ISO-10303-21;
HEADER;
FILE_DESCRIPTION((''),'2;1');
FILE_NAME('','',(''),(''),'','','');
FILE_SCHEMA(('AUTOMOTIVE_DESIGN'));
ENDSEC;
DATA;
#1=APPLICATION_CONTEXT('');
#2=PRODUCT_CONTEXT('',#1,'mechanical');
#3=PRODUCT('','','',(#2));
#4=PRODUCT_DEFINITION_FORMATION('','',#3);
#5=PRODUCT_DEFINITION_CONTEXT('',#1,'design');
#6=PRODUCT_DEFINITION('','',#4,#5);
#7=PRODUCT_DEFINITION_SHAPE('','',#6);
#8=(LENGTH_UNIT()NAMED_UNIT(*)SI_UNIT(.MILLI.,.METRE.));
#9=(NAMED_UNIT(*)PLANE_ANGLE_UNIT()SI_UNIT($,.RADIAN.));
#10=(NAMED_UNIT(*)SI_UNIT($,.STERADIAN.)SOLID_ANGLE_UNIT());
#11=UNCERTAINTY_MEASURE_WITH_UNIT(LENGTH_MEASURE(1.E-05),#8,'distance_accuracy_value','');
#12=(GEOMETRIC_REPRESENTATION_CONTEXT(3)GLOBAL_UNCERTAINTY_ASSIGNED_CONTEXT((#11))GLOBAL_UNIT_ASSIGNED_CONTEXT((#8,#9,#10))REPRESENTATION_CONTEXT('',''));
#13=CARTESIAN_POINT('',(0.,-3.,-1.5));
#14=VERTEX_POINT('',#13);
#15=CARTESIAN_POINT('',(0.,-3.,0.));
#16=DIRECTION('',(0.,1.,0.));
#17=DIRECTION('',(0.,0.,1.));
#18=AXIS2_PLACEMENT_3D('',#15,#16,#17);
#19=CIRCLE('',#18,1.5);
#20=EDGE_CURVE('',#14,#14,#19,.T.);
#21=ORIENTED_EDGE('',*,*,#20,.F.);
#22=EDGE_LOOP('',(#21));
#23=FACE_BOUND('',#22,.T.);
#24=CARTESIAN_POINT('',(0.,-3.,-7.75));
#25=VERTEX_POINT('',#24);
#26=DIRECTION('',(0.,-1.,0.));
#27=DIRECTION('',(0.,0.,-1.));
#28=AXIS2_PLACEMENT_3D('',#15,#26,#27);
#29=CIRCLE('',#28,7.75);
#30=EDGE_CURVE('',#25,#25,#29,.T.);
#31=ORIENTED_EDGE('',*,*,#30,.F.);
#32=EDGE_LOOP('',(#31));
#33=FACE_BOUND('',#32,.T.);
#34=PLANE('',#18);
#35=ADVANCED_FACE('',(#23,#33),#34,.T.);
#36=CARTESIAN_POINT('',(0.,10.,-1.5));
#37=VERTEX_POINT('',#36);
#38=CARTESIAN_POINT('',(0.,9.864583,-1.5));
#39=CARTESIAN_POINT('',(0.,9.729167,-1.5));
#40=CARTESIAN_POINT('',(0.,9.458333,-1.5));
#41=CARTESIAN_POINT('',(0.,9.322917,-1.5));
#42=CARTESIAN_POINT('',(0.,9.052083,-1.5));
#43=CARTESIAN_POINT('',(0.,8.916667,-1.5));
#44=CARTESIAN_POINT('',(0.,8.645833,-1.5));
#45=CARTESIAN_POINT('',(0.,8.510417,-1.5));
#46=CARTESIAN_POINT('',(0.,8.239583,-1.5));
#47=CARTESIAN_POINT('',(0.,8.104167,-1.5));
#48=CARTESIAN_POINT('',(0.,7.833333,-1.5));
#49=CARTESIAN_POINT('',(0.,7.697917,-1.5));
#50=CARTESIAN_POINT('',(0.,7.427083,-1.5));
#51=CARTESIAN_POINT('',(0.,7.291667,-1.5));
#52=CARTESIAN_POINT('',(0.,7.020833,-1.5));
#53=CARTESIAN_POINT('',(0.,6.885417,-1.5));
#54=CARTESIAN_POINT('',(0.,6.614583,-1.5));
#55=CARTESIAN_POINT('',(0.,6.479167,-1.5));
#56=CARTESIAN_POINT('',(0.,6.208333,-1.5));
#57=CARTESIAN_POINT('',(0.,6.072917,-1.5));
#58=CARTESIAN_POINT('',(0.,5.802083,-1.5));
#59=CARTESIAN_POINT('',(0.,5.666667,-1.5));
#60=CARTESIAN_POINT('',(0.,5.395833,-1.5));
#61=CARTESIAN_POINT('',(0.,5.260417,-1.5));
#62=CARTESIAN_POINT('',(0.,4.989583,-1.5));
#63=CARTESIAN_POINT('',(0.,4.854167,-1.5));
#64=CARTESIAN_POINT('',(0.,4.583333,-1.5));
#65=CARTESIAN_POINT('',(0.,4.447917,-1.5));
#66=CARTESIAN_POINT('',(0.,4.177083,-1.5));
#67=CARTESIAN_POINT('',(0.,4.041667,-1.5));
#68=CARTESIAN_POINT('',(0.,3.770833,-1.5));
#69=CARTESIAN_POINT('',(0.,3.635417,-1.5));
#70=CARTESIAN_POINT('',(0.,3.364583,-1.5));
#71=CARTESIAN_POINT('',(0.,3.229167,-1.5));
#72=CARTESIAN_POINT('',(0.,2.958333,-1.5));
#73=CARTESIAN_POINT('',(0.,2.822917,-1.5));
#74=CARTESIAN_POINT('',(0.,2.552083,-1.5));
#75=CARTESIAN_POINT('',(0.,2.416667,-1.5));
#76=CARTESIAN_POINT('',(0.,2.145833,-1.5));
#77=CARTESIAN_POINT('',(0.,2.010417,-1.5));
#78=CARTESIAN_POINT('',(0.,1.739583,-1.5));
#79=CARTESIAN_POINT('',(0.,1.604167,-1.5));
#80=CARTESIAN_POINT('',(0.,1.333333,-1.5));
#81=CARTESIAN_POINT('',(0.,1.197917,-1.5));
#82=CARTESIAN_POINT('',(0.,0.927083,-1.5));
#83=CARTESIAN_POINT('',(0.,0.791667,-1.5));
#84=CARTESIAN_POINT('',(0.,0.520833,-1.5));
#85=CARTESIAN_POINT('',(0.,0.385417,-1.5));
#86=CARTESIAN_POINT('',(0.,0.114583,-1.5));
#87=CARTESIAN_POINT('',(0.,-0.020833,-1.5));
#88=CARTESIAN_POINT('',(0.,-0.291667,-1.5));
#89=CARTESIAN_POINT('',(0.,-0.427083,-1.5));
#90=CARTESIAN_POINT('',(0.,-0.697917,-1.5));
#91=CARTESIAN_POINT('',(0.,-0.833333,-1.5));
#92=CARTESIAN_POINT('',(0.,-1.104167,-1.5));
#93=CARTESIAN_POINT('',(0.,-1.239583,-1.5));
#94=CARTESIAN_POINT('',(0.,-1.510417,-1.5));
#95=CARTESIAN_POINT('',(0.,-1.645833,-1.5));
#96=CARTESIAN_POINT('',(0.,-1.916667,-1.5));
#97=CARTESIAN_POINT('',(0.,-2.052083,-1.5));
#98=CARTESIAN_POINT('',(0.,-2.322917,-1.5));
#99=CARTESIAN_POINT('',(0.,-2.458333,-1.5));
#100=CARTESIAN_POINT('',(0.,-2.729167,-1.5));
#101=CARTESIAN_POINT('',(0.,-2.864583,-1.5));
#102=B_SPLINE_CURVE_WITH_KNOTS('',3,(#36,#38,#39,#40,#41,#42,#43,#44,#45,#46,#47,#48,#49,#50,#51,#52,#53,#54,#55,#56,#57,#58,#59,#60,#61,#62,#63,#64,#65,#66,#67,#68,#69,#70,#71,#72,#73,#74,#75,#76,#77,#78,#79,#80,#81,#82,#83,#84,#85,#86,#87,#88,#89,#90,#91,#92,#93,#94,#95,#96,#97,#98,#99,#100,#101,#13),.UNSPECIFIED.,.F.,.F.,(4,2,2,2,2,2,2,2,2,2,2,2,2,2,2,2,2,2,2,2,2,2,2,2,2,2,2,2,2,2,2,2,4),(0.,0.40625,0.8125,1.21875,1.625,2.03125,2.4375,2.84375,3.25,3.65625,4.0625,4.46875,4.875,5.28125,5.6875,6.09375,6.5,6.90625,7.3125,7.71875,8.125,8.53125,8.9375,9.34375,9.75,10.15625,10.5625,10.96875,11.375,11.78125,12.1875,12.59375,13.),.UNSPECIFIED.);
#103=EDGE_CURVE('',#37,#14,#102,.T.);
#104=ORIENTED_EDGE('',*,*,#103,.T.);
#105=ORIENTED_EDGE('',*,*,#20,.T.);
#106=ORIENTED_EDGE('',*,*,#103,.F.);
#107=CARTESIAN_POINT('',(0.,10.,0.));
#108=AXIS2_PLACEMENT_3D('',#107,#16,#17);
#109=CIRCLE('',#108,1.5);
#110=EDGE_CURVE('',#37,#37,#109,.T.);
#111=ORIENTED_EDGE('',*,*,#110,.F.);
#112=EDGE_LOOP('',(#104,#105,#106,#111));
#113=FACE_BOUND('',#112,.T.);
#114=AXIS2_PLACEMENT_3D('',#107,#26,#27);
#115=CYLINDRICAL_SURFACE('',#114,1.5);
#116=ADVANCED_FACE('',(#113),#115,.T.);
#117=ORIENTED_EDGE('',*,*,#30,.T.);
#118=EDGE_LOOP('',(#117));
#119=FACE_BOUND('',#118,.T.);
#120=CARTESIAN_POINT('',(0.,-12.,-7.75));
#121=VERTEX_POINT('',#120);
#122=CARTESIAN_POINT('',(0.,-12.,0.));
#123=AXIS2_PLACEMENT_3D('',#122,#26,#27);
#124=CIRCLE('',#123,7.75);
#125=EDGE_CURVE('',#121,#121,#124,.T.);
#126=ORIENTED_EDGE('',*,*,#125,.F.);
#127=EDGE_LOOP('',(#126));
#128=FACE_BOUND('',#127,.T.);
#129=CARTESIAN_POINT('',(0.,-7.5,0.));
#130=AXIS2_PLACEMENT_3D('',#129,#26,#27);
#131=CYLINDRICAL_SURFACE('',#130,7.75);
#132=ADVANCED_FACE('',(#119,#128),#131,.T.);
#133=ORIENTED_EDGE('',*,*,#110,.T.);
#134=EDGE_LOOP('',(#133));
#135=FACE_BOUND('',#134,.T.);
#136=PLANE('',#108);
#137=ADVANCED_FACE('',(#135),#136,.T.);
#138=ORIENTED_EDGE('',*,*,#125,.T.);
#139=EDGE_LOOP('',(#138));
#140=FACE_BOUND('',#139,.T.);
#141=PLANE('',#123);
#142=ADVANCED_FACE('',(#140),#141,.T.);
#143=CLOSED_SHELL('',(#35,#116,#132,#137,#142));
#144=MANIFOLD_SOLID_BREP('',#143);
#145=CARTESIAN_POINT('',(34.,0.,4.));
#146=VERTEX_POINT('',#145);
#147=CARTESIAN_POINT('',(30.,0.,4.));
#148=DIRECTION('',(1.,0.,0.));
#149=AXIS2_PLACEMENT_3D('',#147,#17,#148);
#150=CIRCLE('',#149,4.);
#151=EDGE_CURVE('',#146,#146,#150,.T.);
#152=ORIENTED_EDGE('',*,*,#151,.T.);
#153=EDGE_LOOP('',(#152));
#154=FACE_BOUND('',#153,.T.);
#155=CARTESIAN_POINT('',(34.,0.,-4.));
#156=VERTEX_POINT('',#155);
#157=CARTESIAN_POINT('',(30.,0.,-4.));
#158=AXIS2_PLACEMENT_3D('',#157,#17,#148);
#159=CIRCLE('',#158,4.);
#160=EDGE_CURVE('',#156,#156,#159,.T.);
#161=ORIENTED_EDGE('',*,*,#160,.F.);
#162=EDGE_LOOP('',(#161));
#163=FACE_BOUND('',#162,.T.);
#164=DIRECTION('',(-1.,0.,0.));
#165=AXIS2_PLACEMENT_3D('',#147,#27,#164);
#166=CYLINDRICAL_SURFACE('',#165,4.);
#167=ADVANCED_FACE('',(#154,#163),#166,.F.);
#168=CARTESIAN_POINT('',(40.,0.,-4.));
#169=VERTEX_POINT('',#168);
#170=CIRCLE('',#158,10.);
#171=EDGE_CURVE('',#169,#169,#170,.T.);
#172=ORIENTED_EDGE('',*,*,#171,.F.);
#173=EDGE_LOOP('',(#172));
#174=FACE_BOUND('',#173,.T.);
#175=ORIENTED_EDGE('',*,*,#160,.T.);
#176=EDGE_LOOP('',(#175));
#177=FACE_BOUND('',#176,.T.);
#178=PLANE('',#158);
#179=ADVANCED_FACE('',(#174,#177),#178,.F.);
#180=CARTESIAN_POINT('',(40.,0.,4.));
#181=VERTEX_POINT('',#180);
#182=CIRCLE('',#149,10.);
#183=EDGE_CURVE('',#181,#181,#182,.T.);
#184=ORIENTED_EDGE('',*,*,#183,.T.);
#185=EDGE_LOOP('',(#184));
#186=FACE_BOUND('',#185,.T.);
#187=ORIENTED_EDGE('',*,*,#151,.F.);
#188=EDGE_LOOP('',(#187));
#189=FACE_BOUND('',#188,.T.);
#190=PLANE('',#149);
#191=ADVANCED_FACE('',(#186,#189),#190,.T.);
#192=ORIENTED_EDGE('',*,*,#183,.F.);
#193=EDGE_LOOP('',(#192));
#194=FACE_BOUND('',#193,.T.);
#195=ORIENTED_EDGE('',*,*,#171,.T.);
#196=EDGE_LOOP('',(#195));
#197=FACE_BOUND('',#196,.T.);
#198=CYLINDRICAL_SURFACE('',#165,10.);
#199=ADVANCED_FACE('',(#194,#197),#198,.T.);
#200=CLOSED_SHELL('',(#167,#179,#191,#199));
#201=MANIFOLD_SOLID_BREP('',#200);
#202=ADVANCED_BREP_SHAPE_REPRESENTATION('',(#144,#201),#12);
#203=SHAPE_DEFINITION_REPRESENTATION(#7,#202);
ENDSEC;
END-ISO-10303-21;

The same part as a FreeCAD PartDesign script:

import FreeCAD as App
import Part
import Sketcher
from FreeCAD import Vector
Q = App.Units.Quantity


def add_polygon(sketch, points):
    """Adds a closed chain of lines whose ends are joined by coincident constraints."""
    first, n = sketch.GeometryCount, len(points)
    for a, b in zip(points, points[1:] + points[:1]):
        sketch.addGeometry(Part.LineSegment(App.Vector(*a, 0), App.Vector(*b, 0)), False)
    for i in range(n):
        sketch.addConstraint(Sketcher.Constraint("Coincident", first + i, 2, first + (i + 1) % n, 1))

doc = App.newDocument("Part")
body = doc.addObject("PartDesign::Body", "Body")

# Sketch on XY plane
sketch1 = body.newObject("Sketcher::SketchObject", "Sketch")
sketch1.AttachmentSupport = (doc.getObject("XY_Plane"), [""])
sketch1.MapMode = "FlatFace"
sketch1.addGeometry(Part.Circle(Vector(30, 0, 0), Vector(0, 0, 1), 10), False)
sketch1.addGeometry(Part.Circle(Vector(30, 0, 0), Vector(0, 0, 1), 4), False)
sketch1.addConstraint(Sketcher.Constraint("Coincident", 1, 3, 0, 3))
sketch1.addConstraint(Sketcher.Constraint("PointOnObject", 0, 3, -1))
sketch1.addConstraint(Sketcher.Constraint("Diameter", 0, Q("20 mm")))
sketch1.addConstraint(Sketcher.Constraint("Diameter", 1, Q("8 mm")))
sketch1.addConstraint(Sketcher.Constraint("DistanceX", -1, 1, 0, 3, Q("30 mm")))
pad1 = body.newObject("PartDesign::Pad", "Pad")
pad1.Profile = sketch1
pad1.Length = 8
pad1.Midplane = True
body2 = doc.addObject("PartDesign::Body", "Body001")

# Sketch on XY plane
sketch2 = body2.newObject("Sketcher::SketchObject", "Sketch001")
sketch2.AttachmentSupport = (doc.getObject("XY_Plane001"), [""])
sketch2.MapMode = "FlatFace"
add_polygon(sketch2, [(0, -3), (0, -12), (7.75, -12), (7.75, -3)])  # lines 0-3
sketch2.addConstraint(Sketcher.Constraint("Vertical", 0))
sketch2.addConstraint(Sketcher.Constraint("Horizontal", 1))
sketch2.addConstraint(Sketcher.Constraint("Vertical", 2))
sketch2.addConstraint(Sketcher.Constraint("Horizontal", 3))
sketch2.addConstraint(Sketcher.Constraint("PointOnObject", 0, 2, -2))
sketch2.addConstraint(Sketcher.Constraint("DistanceY", 0, 2, 0, 1, Q("9 mm")))
sketch2.addConstraint(Sketcher.Constraint("DistanceY", 0, 2, -1, 1, Q("12 mm")))
sketch2.addConstraint(Sketcher.Constraint("DistanceX", 1, 1, 1, 2, Q("7.75 mm")))
revolution = body2.newObject("PartDesign::Revolution", "Revolution")
revolution.Profile = sketch2
revolution.ReferenceAxis = (sketch2, ["V_Axis"])
revolution.Angle = 360

# Sketch on XZ plane
sketch3 = body2.newObject("Sketcher::SketchObject", "Sketch002")
sketch3.AttachmentSupport = (doc.getObject("XZ_Plane001"), [""])
sketch3.MapMode = "FlatFace"
sketch3.AttachmentOffset = App.Placement(Vector(0, 0, 3), App.Rotation())
sketch3.addGeometry(Part.Circle(Vector(0, 0, 0), Vector(0, 0, 1), 1.5), False)
sketch3.addConstraint(Sketcher.Constraint("Coincident", 0, 3, -1, 1))
sketch3.addConstraint(Sketcher.Constraint("Diameter", 0, Q("3 mm")))
pad2 = body2.newObject("PartDesign::Pad", "Pad001")
pad2.Profile = sketch3
pad2.Length = 13
pad2.Reversed = True

doc.recompute()
